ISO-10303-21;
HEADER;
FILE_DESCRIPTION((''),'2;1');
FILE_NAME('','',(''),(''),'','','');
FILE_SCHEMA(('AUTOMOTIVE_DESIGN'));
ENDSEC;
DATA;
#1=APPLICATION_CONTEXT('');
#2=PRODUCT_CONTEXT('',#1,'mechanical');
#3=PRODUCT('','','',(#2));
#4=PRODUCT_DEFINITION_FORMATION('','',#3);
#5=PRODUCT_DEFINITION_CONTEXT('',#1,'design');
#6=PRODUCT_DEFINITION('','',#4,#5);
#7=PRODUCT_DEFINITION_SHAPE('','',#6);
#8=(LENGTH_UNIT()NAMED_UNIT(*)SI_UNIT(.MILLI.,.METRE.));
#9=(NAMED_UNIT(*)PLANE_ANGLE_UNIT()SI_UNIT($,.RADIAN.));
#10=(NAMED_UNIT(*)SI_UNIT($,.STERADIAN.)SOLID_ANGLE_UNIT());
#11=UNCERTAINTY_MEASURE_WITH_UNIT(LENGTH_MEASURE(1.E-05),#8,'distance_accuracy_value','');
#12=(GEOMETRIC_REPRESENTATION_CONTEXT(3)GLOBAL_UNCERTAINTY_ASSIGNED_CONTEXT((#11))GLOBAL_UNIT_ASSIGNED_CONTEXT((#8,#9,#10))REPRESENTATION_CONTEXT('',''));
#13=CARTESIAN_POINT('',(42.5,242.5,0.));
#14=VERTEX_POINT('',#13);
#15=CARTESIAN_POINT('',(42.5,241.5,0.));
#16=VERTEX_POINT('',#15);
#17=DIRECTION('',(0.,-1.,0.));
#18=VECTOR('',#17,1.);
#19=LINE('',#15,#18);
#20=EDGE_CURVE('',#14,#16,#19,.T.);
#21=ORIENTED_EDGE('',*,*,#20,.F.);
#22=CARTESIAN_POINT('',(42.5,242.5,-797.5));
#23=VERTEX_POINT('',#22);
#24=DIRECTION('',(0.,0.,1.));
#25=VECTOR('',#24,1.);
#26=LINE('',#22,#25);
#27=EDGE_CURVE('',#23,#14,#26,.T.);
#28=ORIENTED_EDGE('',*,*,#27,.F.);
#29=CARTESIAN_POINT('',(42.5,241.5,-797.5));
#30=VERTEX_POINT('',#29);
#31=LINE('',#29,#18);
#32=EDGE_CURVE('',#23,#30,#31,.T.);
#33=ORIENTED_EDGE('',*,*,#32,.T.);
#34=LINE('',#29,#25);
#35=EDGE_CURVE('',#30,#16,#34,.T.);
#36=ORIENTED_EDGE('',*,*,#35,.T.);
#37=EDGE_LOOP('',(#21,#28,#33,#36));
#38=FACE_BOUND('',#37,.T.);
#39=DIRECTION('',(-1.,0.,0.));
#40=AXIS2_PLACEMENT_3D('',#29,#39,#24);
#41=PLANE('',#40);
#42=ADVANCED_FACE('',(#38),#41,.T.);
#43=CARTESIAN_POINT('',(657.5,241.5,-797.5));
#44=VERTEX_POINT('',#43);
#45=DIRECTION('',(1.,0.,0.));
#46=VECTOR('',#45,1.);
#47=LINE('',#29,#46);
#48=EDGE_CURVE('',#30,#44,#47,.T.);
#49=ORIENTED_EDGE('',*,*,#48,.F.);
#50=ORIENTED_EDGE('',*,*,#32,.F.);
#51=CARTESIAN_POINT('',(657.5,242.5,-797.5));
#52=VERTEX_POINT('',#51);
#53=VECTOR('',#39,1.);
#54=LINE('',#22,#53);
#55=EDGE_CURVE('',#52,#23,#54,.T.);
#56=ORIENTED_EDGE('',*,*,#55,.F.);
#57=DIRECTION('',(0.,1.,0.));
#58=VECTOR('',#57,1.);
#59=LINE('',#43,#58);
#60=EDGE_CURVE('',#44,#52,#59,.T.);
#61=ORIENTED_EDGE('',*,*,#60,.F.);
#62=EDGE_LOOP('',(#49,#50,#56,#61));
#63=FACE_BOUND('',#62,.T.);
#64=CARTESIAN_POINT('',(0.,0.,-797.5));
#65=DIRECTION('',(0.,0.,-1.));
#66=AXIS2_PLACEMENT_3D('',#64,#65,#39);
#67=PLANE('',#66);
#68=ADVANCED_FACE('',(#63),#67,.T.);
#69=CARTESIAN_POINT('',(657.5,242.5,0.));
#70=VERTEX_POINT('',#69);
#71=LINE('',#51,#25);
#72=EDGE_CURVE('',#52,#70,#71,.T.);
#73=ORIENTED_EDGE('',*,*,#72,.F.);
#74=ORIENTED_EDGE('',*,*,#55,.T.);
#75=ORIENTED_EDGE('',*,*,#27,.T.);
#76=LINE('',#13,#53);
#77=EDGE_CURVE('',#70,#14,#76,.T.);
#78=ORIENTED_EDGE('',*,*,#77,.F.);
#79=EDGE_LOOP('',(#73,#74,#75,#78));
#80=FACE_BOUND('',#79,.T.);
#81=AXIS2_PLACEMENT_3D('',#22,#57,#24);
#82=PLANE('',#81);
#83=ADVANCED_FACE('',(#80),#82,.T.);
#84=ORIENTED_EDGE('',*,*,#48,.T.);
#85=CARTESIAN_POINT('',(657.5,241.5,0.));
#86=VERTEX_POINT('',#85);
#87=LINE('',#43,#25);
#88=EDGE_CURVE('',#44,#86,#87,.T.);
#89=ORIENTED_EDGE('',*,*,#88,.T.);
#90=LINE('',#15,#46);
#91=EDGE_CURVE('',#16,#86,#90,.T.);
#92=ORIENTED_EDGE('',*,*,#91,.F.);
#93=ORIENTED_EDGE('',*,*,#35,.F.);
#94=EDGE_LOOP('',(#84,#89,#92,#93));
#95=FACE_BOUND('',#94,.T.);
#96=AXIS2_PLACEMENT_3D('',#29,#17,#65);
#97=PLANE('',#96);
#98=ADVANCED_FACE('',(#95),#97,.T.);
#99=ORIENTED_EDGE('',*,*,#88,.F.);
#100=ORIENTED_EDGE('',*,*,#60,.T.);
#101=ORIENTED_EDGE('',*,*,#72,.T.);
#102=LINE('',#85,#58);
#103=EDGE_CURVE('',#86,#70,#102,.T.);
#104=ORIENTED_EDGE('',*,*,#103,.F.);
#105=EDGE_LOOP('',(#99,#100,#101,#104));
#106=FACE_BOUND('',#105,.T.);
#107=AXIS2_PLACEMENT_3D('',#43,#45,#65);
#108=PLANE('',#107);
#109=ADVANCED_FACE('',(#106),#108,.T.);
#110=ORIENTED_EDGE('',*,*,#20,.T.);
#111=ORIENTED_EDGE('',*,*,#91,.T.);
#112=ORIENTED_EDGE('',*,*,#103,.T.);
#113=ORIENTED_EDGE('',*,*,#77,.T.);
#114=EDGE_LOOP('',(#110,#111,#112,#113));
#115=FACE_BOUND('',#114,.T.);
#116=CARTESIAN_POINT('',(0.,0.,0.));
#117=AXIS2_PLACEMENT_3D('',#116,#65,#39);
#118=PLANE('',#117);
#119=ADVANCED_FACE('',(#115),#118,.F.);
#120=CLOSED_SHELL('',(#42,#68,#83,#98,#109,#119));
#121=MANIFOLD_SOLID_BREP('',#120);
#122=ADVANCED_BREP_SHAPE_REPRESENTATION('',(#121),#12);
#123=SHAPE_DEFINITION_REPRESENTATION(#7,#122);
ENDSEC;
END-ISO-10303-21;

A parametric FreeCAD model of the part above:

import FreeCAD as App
import Part
import Sketcher

doc = App.newDocument("Part")
body = doc.addObject("PartDesign::Body", "Body")

# Sketch on XY plane
sketch1 = body.newObject("Sketcher::SketchObject", "Sketch")
sketch1.AttachmentSupport = (doc.getObject("XY_Plane"), [""])
sketch1.MapMode = "FlatFace"
sketch1.addGeometry(Part.LineSegment(App.Vector(42.5, 242.5, 0), App.Vector(42.5, 241.5, 0)), False)
sketch1.addGeometry(Part.LineSegment(App.Vector(42.5, 241.5, 0), App.Vector(657.5, 241.5, 0)), False)
sketch1.addGeometry(Part.LineSegment(App.Vector(657.5, 241.5, 0), App.Vector(657.5, 242.5, 0)), False)
sketch1.addGeometry(Part.LineSegment(App.Vector(657.5, 242.5, 0), App.Vector(42.5, 242.5, 0)), False)
sketch1.addConstraint(Sketcher.Constraint("Coincident", 0, 2, 1, 1))
sketch1.addConstraint(Sketcher.Constraint("Coincident", 1, 2, 2, 1))
sketch1.addConstraint(Sketcher.Constraint("Coincident", 2, 2, 3, 1))
sketch1.addConstraint(Sketcher.Constraint("Coincident", 3, 2, 0, 1))
sketch1.addConstraint(Sketcher.Constraint("Vertical", 0))
sketch1.addConstraint(Sketcher.Constraint("Horizontal", 1))
sketch1.addConstraint(Sketcher.Constraint("Vertical", 2))
sketch1.addConstraint(Sketcher.Constraint("Horizontal", 3))
sketch1.addConstraint(Sketcher.Constraint("DistanceX", 1, 1, 1, 2, 615.0))
sketch1.addConstraint(Sketcher.Constraint("DistanceY", 0, 2, 0, 1, 1.0))
sketch1.addConstraint(Sketcher.Constraint("DistanceX", -1, 1, 0, 2, 42.5))
sketch1.addConstraint(Sketcher.Constraint("DistanceY", -1, 1, 0, 2, 241.5))
pad1 = body.newObject("PartDesign::Pad", "Pad")
pad1.Profile = sketch1
pad1.Length = 797.5
pad1.Reversed = True

doc.recompute()
